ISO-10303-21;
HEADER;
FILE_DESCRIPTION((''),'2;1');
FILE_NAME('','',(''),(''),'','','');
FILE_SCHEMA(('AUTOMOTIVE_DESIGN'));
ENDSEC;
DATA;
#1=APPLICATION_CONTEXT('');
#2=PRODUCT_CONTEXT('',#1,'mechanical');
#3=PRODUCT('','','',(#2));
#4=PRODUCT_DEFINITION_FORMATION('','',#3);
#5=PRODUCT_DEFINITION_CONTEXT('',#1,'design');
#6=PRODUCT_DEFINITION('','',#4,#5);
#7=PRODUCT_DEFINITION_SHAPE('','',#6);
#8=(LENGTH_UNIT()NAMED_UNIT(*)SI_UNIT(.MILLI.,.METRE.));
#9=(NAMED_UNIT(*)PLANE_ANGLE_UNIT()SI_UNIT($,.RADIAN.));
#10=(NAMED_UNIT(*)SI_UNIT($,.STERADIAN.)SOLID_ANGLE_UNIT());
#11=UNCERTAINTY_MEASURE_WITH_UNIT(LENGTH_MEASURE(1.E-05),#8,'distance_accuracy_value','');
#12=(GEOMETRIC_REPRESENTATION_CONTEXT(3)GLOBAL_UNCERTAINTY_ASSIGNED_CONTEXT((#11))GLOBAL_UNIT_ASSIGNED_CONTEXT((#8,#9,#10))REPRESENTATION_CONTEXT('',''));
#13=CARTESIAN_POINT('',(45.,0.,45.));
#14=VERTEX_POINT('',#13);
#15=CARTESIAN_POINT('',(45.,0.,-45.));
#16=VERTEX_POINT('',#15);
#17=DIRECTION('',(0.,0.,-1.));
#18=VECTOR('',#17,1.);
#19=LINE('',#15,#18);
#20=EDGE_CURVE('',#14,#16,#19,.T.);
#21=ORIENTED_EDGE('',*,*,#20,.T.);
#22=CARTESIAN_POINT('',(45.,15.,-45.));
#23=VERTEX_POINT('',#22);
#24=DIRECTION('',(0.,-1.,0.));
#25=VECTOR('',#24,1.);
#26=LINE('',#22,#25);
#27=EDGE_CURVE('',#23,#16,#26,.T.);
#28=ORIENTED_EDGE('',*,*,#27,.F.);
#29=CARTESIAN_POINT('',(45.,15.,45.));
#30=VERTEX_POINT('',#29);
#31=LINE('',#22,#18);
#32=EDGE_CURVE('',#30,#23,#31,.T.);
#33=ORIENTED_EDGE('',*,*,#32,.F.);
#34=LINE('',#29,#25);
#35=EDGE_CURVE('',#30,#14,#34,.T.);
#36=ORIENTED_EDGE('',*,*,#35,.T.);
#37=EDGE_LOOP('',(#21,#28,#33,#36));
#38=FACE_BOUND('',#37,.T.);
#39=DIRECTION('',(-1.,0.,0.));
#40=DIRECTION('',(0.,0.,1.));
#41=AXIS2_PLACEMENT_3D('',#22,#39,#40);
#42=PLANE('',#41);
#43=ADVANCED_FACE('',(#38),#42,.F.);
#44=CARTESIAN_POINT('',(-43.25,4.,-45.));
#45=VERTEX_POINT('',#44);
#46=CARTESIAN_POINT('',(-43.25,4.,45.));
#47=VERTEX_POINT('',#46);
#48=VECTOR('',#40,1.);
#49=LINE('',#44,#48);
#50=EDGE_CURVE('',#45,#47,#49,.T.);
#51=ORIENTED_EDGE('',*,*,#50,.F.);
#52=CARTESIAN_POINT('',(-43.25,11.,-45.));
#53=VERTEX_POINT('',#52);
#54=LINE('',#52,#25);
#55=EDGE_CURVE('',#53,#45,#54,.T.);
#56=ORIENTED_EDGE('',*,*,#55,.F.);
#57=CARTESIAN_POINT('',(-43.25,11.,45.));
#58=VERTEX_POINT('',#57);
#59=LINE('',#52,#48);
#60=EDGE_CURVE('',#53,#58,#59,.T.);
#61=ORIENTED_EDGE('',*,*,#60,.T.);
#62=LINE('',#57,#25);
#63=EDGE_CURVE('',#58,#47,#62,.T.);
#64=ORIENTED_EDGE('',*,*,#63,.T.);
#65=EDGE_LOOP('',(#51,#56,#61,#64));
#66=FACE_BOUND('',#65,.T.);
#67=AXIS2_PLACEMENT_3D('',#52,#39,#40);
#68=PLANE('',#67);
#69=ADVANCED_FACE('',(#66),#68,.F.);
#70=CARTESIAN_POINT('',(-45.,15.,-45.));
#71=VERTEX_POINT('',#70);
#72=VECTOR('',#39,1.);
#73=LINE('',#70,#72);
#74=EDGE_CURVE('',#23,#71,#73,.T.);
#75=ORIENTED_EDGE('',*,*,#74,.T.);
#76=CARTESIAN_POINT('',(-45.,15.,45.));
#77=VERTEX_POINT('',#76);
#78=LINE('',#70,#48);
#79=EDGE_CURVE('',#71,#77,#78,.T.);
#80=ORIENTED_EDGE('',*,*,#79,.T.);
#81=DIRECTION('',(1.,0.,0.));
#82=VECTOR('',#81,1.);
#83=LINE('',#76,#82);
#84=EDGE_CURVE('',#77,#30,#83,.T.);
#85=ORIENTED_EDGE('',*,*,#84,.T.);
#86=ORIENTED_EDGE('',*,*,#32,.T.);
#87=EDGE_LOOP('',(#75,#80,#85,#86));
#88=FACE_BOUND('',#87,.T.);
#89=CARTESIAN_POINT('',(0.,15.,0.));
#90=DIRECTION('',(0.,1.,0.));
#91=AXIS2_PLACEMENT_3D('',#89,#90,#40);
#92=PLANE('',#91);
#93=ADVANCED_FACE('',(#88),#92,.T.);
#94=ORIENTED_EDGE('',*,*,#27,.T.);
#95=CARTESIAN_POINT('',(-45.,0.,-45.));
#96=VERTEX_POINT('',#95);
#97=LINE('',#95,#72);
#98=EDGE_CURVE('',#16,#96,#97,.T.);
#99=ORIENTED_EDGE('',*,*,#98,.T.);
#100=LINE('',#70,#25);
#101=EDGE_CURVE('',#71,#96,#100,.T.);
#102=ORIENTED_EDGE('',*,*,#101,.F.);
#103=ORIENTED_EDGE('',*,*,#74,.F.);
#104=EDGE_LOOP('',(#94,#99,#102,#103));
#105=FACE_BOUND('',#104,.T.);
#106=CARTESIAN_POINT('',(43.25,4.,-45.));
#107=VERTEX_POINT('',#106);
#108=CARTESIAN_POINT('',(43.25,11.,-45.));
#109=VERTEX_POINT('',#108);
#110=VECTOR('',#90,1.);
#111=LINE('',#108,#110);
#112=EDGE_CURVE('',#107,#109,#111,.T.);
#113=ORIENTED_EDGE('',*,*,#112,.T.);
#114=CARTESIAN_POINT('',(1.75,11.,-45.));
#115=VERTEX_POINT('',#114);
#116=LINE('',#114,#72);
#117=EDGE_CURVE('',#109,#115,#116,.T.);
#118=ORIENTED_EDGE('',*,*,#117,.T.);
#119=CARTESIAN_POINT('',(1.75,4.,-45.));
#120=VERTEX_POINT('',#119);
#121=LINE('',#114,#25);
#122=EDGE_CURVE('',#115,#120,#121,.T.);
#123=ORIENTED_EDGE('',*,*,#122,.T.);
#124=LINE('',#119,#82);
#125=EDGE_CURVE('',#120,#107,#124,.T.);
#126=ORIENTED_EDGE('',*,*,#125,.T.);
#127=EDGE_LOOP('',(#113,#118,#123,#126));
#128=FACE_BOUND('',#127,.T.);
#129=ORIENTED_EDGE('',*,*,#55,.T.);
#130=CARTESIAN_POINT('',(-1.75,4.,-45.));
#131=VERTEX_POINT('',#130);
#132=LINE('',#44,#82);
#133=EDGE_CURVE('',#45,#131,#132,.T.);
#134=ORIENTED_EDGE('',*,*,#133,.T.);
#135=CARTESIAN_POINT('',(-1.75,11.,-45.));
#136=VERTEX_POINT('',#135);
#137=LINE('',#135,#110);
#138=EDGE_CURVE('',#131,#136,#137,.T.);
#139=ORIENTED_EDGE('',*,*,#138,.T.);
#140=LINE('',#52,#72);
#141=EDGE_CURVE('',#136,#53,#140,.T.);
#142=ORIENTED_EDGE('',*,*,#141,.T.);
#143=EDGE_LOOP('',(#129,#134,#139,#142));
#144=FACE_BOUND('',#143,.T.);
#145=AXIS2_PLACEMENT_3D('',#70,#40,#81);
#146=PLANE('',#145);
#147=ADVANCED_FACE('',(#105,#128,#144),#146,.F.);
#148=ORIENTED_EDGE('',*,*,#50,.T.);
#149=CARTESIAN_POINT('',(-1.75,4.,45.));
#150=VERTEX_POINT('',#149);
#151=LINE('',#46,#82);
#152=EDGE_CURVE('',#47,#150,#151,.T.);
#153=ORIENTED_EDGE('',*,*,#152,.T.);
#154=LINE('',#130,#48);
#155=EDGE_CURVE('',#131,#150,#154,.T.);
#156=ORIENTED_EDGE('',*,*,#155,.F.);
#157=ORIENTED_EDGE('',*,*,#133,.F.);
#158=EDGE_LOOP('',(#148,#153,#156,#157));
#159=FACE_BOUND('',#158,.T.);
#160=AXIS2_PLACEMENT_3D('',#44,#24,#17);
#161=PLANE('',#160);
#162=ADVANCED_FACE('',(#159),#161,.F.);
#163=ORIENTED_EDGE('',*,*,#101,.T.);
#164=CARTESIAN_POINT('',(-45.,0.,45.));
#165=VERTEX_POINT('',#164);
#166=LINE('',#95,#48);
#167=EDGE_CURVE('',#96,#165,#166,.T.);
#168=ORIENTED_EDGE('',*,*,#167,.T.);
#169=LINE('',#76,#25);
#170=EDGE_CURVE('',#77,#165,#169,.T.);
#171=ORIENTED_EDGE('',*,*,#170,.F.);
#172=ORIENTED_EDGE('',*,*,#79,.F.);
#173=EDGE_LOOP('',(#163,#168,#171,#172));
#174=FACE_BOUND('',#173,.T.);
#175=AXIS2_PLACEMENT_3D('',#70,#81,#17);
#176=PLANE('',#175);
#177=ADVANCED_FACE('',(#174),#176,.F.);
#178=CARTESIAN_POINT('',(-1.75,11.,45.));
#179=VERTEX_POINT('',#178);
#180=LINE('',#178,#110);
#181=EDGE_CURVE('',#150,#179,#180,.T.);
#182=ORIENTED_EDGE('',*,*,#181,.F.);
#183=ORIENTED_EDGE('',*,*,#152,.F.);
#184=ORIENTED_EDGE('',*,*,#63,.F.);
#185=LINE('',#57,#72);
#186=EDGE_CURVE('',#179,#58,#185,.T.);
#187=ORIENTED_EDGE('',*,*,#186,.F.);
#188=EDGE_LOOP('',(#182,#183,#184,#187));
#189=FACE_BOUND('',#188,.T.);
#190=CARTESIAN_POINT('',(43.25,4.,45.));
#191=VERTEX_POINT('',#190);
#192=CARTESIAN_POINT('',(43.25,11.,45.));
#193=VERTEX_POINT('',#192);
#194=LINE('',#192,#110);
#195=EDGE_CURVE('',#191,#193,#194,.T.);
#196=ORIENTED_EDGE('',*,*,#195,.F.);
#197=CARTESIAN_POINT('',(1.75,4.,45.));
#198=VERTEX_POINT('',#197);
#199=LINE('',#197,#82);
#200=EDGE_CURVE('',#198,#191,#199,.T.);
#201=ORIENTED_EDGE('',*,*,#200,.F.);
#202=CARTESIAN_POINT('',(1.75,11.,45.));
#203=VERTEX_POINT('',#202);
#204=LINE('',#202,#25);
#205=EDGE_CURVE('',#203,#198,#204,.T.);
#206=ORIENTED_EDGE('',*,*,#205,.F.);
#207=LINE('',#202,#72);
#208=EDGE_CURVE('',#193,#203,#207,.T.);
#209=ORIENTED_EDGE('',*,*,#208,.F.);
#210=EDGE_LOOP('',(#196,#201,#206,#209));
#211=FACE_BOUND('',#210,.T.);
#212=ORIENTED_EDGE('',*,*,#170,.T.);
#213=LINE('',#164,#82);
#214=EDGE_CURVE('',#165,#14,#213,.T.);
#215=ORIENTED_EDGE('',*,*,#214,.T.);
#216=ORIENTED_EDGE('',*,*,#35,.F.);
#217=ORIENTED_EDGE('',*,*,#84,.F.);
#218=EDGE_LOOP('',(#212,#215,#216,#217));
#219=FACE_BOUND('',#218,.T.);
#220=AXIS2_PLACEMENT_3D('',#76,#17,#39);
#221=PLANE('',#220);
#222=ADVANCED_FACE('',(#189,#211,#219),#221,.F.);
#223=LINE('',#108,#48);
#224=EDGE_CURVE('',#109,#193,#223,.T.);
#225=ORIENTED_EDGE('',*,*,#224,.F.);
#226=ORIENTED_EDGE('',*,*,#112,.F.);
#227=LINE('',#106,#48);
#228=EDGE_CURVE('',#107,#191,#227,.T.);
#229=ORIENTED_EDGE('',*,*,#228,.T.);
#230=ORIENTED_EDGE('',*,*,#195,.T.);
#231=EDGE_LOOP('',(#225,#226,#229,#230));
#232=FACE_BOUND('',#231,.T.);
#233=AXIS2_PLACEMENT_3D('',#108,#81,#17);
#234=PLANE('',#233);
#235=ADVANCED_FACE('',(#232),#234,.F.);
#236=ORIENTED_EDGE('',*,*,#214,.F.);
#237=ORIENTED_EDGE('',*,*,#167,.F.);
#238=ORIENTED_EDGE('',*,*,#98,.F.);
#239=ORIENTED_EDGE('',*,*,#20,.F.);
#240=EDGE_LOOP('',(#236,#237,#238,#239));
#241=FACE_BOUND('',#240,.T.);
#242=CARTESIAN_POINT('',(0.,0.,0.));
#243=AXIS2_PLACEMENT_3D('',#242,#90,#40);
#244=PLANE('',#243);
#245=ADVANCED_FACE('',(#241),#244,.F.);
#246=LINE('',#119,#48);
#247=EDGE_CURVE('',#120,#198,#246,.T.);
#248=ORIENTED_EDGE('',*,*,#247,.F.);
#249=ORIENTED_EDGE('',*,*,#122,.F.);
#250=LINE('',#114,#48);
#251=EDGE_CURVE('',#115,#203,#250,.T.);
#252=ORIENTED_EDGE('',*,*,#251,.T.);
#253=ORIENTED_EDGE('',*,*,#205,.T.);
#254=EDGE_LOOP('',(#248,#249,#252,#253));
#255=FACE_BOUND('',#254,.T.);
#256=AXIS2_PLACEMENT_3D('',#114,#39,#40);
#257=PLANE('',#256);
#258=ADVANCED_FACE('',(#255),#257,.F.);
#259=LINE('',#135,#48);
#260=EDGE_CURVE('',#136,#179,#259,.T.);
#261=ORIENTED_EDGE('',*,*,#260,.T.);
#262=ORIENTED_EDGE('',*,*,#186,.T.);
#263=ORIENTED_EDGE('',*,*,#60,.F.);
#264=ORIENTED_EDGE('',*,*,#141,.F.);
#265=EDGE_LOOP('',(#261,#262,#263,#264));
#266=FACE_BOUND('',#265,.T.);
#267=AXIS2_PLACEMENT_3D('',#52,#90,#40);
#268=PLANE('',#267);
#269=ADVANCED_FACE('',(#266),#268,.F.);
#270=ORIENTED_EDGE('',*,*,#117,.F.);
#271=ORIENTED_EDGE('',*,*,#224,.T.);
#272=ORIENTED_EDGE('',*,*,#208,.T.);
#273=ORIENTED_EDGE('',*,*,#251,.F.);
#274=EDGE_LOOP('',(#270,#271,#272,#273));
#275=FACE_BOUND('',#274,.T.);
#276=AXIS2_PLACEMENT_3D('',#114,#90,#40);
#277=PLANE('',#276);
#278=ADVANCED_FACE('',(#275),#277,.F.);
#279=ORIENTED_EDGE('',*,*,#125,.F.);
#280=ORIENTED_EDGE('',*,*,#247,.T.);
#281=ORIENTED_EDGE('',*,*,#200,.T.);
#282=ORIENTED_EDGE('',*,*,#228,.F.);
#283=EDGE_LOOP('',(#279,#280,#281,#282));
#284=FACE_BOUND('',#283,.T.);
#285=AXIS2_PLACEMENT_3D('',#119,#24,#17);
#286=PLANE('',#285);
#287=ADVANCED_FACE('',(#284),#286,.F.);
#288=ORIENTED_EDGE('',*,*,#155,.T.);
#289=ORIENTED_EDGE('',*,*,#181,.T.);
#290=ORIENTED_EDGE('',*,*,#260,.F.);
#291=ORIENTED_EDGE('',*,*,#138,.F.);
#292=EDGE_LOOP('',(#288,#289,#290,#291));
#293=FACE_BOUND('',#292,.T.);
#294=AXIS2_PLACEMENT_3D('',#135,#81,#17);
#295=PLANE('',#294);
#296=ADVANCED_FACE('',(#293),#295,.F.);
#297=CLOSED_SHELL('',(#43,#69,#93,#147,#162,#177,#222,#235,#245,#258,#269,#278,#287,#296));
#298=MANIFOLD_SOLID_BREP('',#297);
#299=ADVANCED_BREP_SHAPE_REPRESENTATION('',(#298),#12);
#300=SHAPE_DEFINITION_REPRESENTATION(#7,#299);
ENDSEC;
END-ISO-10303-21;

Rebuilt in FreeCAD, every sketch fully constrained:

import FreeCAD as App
import Part
import Sketcher
Q = App.Units.Quantity


def add_polygon(sketch, points):
    """Adds a closed chain of lines whose ends are joined by coincident constraints."""
    first, n = sketch.GeometryCount, len(points)
    for a, b in zip(points, points[1:] + points[:1]):
        sketch.addGeometry(Part.LineSegment(App.Vector(*a, 0), App.Vector(*b, 0)), False)
    for i in range(n):
        sketch.addConstraint(Sketcher.Constraint("Coincident", first + i, 2, first + (i + 1) % n, 1))

doc = App.newDocument("Part")
params = doc.addObject("Spreadsheet::Sheet", "Params")
for row, (alias, value) in enumerate([
    ("sketch1_width", "90 mm"),
    ("pad1_length", "15 mm"),
    ("sketch2_height", "7 mm"),
    ("sketch2_width", "41.5 mm"),
    ("pocket1_length", "90 mm"),
], start=1):
    params.set(f"A{row}", alias)
    params.set(f"B{row}", "=" + value)
    params.setAlias(f"B{row}", alias)

body = doc.addObject("PartDesign::Body", "Body")

# Sketch on XZ plane
sketch1 = body.newObject("Sketcher::SketchObject", "Sketch")
sketch1.AttachmentSupport = (doc.getObject("XZ_Plane"), [""])
sketch1.MapMode = "FlatFace"
add_polygon(sketch1, [(-45, -45), (-45, 45), (45, 45), (45, -45)])  # lines 0-3
sketch1.addConstraint(Sketcher.Constraint("Vertical", 0))
sketch1.addConstraint(Sketcher.Constraint("Horizontal", 1))
sketch1.addConstraint(Sketcher.Constraint("Vertical", 2))
sketch1.addConstraint(Sketcher.Constraint("Horizontal", 3))
sketch1.addConstraint(Sketcher.Constraint("Symmetric", 0, 2, 2, 2, -1, 1))
sketch1.addConstraint(Sketcher.Constraint("Equal", 3, 0))
sketch1.addConstraint(Sketcher.Constraint("DistanceX", 1, 1, 1, 2, Q("90 mm")))
sketch1.setExpression("Constraints[10]", "Params.sketch1_width")
pad1 = body.newObject("PartDesign::Pad", "Pad")
pad1.Profile = sketch1
pad1.setExpression("Length", "Params.pad1_length")
pad1.Reversed = True

# Sketch on XY plane
sketch2 = body.newObject("Sketcher::SketchObject", "Sketch001")
sketch2.AttachmentSupport = (doc.getObject("XY_Plane"), [""])
sketch2.MapMode = "FlatFace"
sketch2.AttachmentOffset = App.Placement(App.Vector(0, 0, 45), App.Rotation())
add_polygon(sketch2, [(-43, 11), (-43, 4), (-2, 4), (-2, 11)])  # lines 0-3
add_polygon(sketch2, [(2, 11), (2, 4), (43, 4), (43, 11)])  # lines 4-7
sketch2.addConstraint(Sketcher.Constraint("Vertical", 0))
sketch2.addConstraint(Sketcher.Constraint("Horizontal", 1))
sketch2.addConstraint(Sketcher.Constraint("Vertical", 2))
sketch2.addConstraint(Sketcher.Constraint("Horizontal", 3))
sketch2.addConstraint(Sketcher.Constraint("Vertical", 4))
sketch2.addConstraint(Sketcher.Constraint("Horizontal", 5))
sketch2.addConstraint(Sketcher.Constraint("Vertical", 6))
sketch2.addConstraint(Sketcher.Constraint("Horizontal", 7))
sketch2.addConstraint(Sketcher.Constraint("Symmetric", 1, 2, 4, 2, -2))
sketch2.addConstraint(Sketcher.Constraint("Symmetric", 3, 2, 6, 2, -2))
sketch2.addConstraint(Sketcher.Constraint("DistanceY", 0, 2, 0, 1, Q("7 mm")))
sketch2.addConstraint(Sketcher.Constraint("DistanceX", 1, 1, 1, 2, Q("41.5 mm")))
sketch2.addConstraint(Sketcher.Constraint("DistanceY", -1, 1, 0, 2, Q("4 mm")))
sketch2.addConstraint(Sketcher.Constraint("DistanceX", 0, 2, 4, 2, Q("45 mm")))
sketch2.setExpression("Constraints[18]", "Params.sketch2_height")
sketch2.setExpression("Constraints[19]", "Params.sketch2_width")
pocket1 = body.newObject("PartDesign::Pocket", "Pocket")
pocket1.Profile = sketch2
pocket1.setExpression("Length", "Params.pocket1_length")

doc.recompute()
